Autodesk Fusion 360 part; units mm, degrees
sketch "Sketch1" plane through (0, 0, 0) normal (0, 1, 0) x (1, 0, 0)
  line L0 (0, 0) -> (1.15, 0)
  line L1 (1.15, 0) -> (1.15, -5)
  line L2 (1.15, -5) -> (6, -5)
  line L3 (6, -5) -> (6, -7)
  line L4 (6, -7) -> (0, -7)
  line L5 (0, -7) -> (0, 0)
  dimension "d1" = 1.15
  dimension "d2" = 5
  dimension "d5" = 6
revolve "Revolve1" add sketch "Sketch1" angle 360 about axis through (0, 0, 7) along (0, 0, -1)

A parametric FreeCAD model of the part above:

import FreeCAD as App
import Part
import Sketcher

V = App.Vector


def add_polygon(sketch, points):
    """Adds a closed chain of lines whose ends are joined by coincident constraints."""
    first, n = sketch.GeometryCount, len(points)
    for a, b in zip(points, points[1:] + points[:1]):
        sketch.addGeometry(Part.LineSegment(App.Vector(*a, 0), App.Vector(*b, 0)), False)
    for i in range(n):
        sketch.addConstraint(Sketcher.Constraint("Coincident", first + i, 2, first + (i + 1) % n, 1))

doc = App.newDocument("Part")
body = doc.addObject("PartDesign::Body", "Body")

sketch1 = body.newObject("Sketcher::SketchObject", "Sketch")
sketch1.AttachmentSupport = (doc.getObject("XZ_Plane"), [""])
sketch1.MapMode = "FlatFace"
add_polygon(sketch1, [(1.1, 0), (0, 0), (0, 7), (6, 7), (6, 5), (1.1, 5)])
sketch1.addConstraint(Sketcher.Constraint("Horizontal", 0))
sketch1.addConstraint(Sketcher.Constraint("Vertical", 1))
sketch1.addConstraint(Sketcher.Constraint("Horizontal", 2))
sketch1.addConstraint(Sketcher.Constraint("Vertical", 3))
sketch1.addConstraint(Sketcher.Constraint("Horizontal", 4))
sketch1.addConstraint(Sketcher.Constraint("Vertical", 5))
sketch1.addConstraint(Sketcher.Constraint("Coincident", 0, 2, -1, 1))
sketch1.addConstraint(Sketcher.Constraint("DistanceX", 2, 1, 2, 2, 6.0))
sketch1.addConstraint(Sketcher.Constraint("DistanceY", 5, 2, 5, 1, 5.0))
sketch1.addConstraint(Sketcher.Constraint("DistanceX", 0, 2, 0, 1, 1.15))
sketch1.addConstraint(Sketcher.Constraint("DistanceY", 1, 1, 1, 2, 7.0))
revolution = body.newObject("PartDesign::Revolution", "Revolution")
revolution.Profile = sketch1
revolution.ReferenceAxis = (sketch1, ["V_Axis"])
revolution.Angle = 360

doc.recompute()
